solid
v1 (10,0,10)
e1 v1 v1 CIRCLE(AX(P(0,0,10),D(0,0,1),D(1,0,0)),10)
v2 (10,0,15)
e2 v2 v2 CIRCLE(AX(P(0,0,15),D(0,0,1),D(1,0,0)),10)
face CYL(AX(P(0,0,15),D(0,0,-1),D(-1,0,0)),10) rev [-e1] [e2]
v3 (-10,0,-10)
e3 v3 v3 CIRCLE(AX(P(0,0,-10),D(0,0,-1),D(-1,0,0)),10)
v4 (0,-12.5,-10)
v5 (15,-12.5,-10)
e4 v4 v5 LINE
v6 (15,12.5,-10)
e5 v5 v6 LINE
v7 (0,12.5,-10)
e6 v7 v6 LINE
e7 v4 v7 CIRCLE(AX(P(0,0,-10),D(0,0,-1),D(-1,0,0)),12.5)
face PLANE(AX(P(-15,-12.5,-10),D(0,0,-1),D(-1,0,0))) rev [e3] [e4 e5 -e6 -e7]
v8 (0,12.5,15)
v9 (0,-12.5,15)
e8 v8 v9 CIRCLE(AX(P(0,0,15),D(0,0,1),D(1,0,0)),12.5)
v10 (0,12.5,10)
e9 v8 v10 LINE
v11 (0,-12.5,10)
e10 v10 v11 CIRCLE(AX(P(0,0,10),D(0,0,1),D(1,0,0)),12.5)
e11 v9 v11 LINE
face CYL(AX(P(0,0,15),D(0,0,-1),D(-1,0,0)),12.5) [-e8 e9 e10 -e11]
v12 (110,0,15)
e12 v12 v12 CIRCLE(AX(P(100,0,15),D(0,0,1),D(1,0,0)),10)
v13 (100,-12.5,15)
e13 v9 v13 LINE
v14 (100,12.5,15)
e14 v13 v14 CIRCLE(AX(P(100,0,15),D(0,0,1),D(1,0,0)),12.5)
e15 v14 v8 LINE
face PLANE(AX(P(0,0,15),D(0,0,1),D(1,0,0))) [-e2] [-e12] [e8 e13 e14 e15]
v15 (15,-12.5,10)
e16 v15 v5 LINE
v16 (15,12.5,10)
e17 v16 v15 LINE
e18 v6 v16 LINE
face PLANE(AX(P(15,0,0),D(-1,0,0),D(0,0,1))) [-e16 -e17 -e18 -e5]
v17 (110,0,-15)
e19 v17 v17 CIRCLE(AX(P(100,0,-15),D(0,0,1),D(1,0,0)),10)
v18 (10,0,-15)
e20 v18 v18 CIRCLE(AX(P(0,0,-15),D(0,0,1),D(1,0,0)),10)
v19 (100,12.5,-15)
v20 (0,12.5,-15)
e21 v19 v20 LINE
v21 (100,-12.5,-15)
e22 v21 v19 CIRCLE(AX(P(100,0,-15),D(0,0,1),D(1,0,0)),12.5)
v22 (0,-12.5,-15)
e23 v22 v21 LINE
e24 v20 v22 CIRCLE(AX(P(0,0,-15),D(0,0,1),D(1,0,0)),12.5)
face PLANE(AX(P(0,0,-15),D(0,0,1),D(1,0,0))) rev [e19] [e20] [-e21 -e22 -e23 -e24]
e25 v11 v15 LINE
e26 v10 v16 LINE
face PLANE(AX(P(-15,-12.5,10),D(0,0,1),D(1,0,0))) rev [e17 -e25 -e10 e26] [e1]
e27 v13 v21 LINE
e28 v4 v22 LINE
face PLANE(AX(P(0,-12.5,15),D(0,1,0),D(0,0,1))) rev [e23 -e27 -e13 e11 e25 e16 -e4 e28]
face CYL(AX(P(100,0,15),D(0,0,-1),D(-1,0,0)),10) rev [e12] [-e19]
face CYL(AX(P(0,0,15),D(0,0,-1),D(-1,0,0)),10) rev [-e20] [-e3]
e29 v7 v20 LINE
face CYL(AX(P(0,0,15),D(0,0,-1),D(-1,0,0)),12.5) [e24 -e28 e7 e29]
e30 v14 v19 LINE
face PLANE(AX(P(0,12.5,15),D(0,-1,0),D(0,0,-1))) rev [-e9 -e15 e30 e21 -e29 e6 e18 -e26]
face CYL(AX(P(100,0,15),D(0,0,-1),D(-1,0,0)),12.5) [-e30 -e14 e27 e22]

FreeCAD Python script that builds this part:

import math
import FreeCAD as App
import Part
import Sketcher
Q = App.Units.Quantity

doc = App.newDocument("Part")
body = doc.addObject("PartDesign::Body", "Body")

sketch1 = body.newObject("Sketcher::SketchObject", "Sketch")
sketch1.AttachmentSupport = (doc.getObject("XY_Plane"), [""])
sketch1.MapMode = "FlatFace"
sketch1.addGeometry(Part.LineSegment(App.Vector(100, 12.5, 0), App.Vector(0, 12.5, 0)), False)
sketch1.addGeometry(Part.ArcOfCircle(Part.Circle(App.Vector(0, 0, 0), App.Vector(0, 0, 1), 12.5), math.radians(90), math.radians(270)), False)
sketch1.addGeometry(Part.LineSegment(App.Vector(0, -12.5, 0), App.Vector(100, -12.5, 0)), False)
sketch1.addGeometry(Part.ArcOfCircle(Part.Circle(App.Vector(100, 0, 0), App.Vector(0, 0, 1), 12.5), math.radians(-90), math.radians(90)), False)
sketch1.addGeometry(Part.Circle(App.Vector(100, 0, 0), App.Vector(0, 0, 1), 10), False)
sketch1.addGeometry(Part.Circle(App.Vector(0, 0, 0), App.Vector(0, 0, 1), 10), False)
sketch1.addConstraint(Sketcher.Constraint("Tangent", 0, 2, 1, 1))
sketch1.addConstraint(Sketcher.Constraint("Tangent", 1, 2, 2, 1))
sketch1.addConstraint(Sketcher.Constraint("Tangent", 2, 2, 3, 1))
sketch1.addConstraint(Sketcher.Constraint("Tangent", 3, 2, 0, 1))
sketch1.addConstraint(Sketcher.Constraint("Horizontal", 0))
sketch1.addConstraint(Sketcher.Constraint("Horizontal", 2))
sketch1.addConstraint(Sketcher.Constraint("Coincident", 1, 3, -1, 1))
sketch1.addConstraint(Sketcher.Constraint("Coincident", 5, 3, -1, 1))
sketch1.addConstraint(Sketcher.Constraint("Coincident", 4, 3, 3, 3))
sketch1.addConstraint(Sketcher.Constraint("Equal", 4, 5))
sketch1.addConstraint(Sketcher.Constraint("Diameter", 4, Q("20 mm")))
sketch1.addConstraint(Sketcher.Constraint("Radius", 1, Q("12.5 mm")))
sketch1.addConstraint(Sketcher.Constraint("DistanceX", 0, 2, 0, 1, Q("100 mm")))
pad1 = body.newObject("PartDesign::Pad", "Pad")
pad1.Profile = sketch1
pad1.Length = 30
pad1.Midplane = True

sketch2 = body.newObject("Sketcher::SketchObject", "Sketch001")
sketch2.AttachmentSupport = (doc.getObject("YZ_Plane"), [""])
sketch2.MapMode = "FlatFace"
sketch2.addGeometry(Part.LineSegment(App.Vector(12.5, 10, 0), App.Vector(-12.5, 10, 0)), False)
sketch2.addGeometry(Part.LineSegment(App.Vector(-12.5, 10, 0), App.Vector(-12.5, -10, 0)), False)
sketch2.addGeometry(Part.LineSegment(App.Vector(-12.5, -10, 0), App.Vector(12.5, -10, 0)), False)
sketch2.addGeometry(Part.LineSegment(App.Vector(12.5, -10, 0), App.Vector(12.5, 10, 0)), False)
sketch2.addConstraint(Sketcher.Constraint("Coincident", 0, 2, 1, 1))
sketch2.addConstraint(Sketcher.Constraint("Coincident", 1, 2, 2, 1))
sketch2.addConstraint(Sketcher.Constraint("Coincident", 2, 2, 3, 1))
sketch2.addConstraint(Sketcher.Constraint("Coincident", 3, 2, 0, 1))
sketch2.addConstraint(Sketcher.Constraint("Horizontal", 0))
sketch2.addConstraint(Sketcher.Constraint("Vertical", 1))
sketch2.addConstraint(Sketcher.Constraint("Horizontal", 2))
sketch2.addConstraint(Sketcher.Constraint("Vertical", 3))
sketch2.addConstraint(Sketcher.Constraint("Symmetric", 0, 2, 2, 2, -1, 1))
sketch2.addConstraint(Sketcher.Constraint("DistanceX", 0, 2, 0, 1, Q("25 mm")))
sketch2.addConstraint(Sketcher.Constraint("DistanceY", 1, 2, 1, 1, Q("20 mm")))
pocket1 = body.newObject("PartDesign::Pocket", "Pocket")
pocket1.Profile = sketch2
pocket1.Length = 30
pocket1.Midplane = True

doc.recompute()
